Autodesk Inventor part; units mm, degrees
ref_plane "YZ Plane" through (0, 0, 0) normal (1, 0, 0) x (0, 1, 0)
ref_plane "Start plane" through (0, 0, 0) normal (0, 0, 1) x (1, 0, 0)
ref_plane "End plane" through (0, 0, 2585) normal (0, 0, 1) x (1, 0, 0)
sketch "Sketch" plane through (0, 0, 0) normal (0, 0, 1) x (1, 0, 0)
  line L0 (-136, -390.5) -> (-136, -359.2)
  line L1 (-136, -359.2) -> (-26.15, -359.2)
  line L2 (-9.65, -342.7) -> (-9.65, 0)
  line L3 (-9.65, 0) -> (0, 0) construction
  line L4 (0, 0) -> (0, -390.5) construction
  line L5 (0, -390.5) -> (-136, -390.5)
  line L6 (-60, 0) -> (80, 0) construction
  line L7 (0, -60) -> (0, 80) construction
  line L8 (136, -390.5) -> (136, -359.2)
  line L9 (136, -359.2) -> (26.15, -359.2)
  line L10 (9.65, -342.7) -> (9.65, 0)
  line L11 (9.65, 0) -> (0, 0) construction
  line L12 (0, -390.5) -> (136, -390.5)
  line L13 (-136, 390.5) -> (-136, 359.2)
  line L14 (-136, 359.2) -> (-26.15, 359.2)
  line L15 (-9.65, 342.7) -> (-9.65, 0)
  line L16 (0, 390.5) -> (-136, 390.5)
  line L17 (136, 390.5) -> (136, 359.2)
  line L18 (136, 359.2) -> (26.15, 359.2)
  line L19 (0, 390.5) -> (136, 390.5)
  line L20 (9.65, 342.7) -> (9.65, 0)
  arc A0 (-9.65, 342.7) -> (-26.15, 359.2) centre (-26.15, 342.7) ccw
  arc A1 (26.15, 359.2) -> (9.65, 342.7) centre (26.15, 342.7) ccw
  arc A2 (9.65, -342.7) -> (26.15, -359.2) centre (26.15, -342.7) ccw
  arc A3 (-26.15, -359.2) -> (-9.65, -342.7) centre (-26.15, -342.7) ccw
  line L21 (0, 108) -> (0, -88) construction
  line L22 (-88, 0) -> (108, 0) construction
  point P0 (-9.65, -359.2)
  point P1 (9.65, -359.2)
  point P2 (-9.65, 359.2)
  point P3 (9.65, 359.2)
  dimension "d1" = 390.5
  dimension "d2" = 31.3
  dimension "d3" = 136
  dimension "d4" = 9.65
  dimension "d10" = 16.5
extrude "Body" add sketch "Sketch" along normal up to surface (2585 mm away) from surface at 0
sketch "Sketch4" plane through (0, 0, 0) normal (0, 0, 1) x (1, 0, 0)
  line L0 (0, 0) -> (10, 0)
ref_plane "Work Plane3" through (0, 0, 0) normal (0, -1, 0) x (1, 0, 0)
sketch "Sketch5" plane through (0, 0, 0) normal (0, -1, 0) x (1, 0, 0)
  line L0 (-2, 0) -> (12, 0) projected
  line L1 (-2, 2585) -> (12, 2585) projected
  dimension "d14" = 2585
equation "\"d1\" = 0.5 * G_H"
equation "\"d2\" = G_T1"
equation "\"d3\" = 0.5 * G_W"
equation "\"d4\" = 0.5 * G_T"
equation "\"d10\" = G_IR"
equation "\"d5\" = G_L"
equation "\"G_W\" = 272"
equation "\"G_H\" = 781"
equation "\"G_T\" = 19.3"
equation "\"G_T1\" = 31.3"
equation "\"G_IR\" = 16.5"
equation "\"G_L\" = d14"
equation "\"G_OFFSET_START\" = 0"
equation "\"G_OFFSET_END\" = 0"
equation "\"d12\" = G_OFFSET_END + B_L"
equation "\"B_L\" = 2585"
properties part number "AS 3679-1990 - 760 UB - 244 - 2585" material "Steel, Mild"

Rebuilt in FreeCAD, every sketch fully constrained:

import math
import FreeCAD as App
import Part
import Sketcher
from FreeCAD import Vector
Q = App.Units.Quantity

doc = App.newDocument("Part")
body = doc.addObject("PartDesign::Body", "Body")

sketch1 = body.newObject("Sketcher::SketchObject", "Sketch")
sketch1.AttachmentSupport = (doc.getObject("XY_Plane"), [""])
sketch1.MapMode = "FlatFace"
sketch1.addGeometry([
    Part.LineSegment(Vector(-136, -359, 0), Vector(-136, -390, 0)),
    Part.LineSegment(Vector(-136, -390, 0), Vector(136, -390, 0)),
    Part.LineSegment(Vector(136, -390, 0), Vector(136, -359, 0)),
    Part.LineSegment(Vector(136, -359, 0), Vector(26, -359, 0)),
    Part.ArcOfCircle(Part.Circle(Vector(26, -343, 0), Vector(0, 0, 1), 16), math.radians(180), math.radians(270)),
    Part.LineSegment(Vector(10, -343, 0), Vector(10, 343, 0)),
    Part.ArcOfCircle(Part.Circle(Vector(26, 343, 0), Vector(0, 0, 1), 16), math.radians(90), math.radians(180)),
    Part.LineSegment(Vector(26, 359, 0), Vector(136, 359, 0)),
    Part.LineSegment(Vector(136, 359, 0), Vector(136, 390, 0)),
    Part.LineSegment(Vector(136, 390, 0), Vector(-136, 390, 0)),
    Part.LineSegment(Vector(-136, 390, 0), Vector(-136, 359, 0)),
    Part.LineSegment(Vector(-136, 359, 0), Vector(-26, 359, 0)),
    Part.ArcOfCircle(Part.Circle(Vector(-26, 343, 0), Vector(0, 0, 1), 16), math.radians(0), math.radians(90)),
    Part.LineSegment(Vector(-10, 343, 0), Vector(-10, -343, 0)),
    Part.ArcOfCircle(Part.Circle(Vector(-26, -343, 0), Vector(0, 0, 1), 16), math.radians(-90), math.radians(0)),
    Part.LineSegment(Vector(-26, -359, 0), Vector(-136, -359, 0)),
], False)
sketch1.addConstraint([
    Sketcher.Constraint("Coincident", 0, 2, 1, 1),
    Sketcher.Constraint("Coincident", 1, 2, 2, 1),
    Sketcher.Constraint("Coincident", 2, 2, 3, 1),
    Sketcher.Constraint("Tangent", 3, 2, 4, 2),
    Sketcher.Constraint("Tangent", 4, 1, 5, 1),
    Sketcher.Constraint("Tangent", 5, 2, 6, 2),
    Sketcher.Constraint("Tangent", 6, 1, 7, 1),
    Sketcher.Constraint("Coincident", 7, 2, 8, 1),
    Sketcher.Constraint("Coincident", 8, 2, 9, 1),
    Sketcher.Constraint("Coincident", 9, 2, 10, 1),
    Sketcher.Constraint("Coincident", 10, 2, 11, 1),
    Sketcher.Constraint("Tangent", 11, 2, 12, 2),
    Sketcher.Constraint("Tangent", 12, 1, 13, 1),
    Sketcher.Constraint("Tangent", 13, 2, 14, 2),
    Sketcher.Constraint("Tangent", 14, 1, 15, 1),
    Sketcher.Constraint("Coincident", 15, 2, 0, 1),
    Sketcher.Constraint("Vertical", 0),
    Sketcher.Constraint("Horizontal", 1),
    Sketcher.Constraint("Vertical", 2),
    Sketcher.Constraint("Horizontal", 3),
    Sketcher.Constraint("Vertical", 5),
    Sketcher.Constraint("Horizontal", 7),
    Sketcher.Constraint("Vertical", 8),
    Sketcher.Constraint("Horizontal", 9),
    Sketcher.Constraint("Vertical", 10),
    Sketcher.Constraint("Horizontal", 11),
    Sketcher.Constraint("Vertical", 13),
    Sketcher.Constraint("Horizontal", 15),
    Sketcher.Constraint("Equal", 4, 6),
    Sketcher.Constraint("Equal", 6, 12),
    Sketcher.Constraint("Equal", 12, 14),
    Sketcher.Constraint("Symmetric", 4, 3, 12, 3, -1, 1),
    Sketcher.Constraint("Symmetric", 0, 2, 8, 2, -1, 1),
    Sketcher.Constraint("Symmetric", 7, 2, 10, 2, -2),
    Sketcher.Constraint("Symmetric", 2, 2, 15, 2, -2),
    Sketcher.Constraint("Radius", 4, Q("16.5 mm")),
    Sketcher.Constraint("DistanceY", 0, 2, 0, 1, Q("31.3 mm")),
    Sketcher.Constraint("DistanceX", 0, 2, -1, 1, Q("136 mm")),
    Sketcher.Constraint("DistanceY", 0, 2, -1, 1, Q("390.5 mm")),
    Sketcher.Constraint("DistanceX", -1, 1, 4, 1, Q("9.65 mm")),
])
pad1 = body.newObject("PartDesign::Pad", "Pad")
pad1.Profile = sketch1
pad1.Length = 2585

doc.recompute()
